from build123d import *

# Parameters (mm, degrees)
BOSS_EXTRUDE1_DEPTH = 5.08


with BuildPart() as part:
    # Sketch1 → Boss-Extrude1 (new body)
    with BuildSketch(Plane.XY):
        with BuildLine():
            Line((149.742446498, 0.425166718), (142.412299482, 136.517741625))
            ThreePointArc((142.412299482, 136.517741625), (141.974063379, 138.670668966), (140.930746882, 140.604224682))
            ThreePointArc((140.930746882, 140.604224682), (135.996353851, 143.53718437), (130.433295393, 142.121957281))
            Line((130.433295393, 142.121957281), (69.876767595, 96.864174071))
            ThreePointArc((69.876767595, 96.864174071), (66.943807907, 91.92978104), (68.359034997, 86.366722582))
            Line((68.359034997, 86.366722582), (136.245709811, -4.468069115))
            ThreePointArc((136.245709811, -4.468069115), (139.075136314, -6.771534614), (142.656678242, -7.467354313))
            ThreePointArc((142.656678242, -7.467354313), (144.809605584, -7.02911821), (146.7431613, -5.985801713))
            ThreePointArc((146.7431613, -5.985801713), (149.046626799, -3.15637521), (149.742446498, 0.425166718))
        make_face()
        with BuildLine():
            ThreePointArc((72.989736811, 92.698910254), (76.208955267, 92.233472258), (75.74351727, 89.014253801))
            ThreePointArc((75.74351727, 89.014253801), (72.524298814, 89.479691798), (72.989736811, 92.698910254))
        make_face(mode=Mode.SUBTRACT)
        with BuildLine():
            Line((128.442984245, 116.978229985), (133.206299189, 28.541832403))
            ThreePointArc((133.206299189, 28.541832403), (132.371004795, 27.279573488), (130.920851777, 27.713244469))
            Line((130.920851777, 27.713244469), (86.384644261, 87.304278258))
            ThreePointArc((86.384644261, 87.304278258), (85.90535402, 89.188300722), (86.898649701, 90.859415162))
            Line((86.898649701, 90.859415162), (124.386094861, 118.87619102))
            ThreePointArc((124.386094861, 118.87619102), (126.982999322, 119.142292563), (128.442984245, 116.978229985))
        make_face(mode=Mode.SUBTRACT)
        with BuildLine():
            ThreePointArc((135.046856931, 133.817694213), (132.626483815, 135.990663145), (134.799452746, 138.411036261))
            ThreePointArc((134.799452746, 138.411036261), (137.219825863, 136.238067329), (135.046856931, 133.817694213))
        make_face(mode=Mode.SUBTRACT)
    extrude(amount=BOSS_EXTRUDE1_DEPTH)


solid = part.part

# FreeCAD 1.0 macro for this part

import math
import FreeCAD as App
import Part
import Sketcher
Q = App.Units.Quantity

doc = App.newDocument("Part")
body = doc.addObject("PartDesign::Body", "Body")

sketch1 = body.newObject("Sketcher::SketchObject", "Sketch")
sketch1.AttachmentSupport = (doc.getObject("XY_Plane"), [""])
sketch1.MapMode = "FlatFace"
sketch1.addGeometry(Part.LineSegment(App.Vector(149.7, 0.4, 0), App.Vector(142.4, 136.5, 0)), False)
sketch1.addGeometry(Part.ArcOfCircle(Part.Circle(App.Vector(134.9, 136.1, 0), App.Vector(0, 0, 1), 7.5), math.radians(3), math.radians(37)), False)
sketch1.addGeometry(Part.ArcOfCircle(Part.Circle(App.Vector(134.9, 136.1, 0), App.Vector(0, 0, 1), 7.5), math.radians(37), math.radians(127)), False)
sketch1.addGeometry(Part.LineSegment(App.Vector(130.4, 142.1, 0), App.Vector(69.9, 96.9, 0)), False)
sketch1.addGeometry(Part.ArcOfCircle(Part.Circle(App.Vector(74.4, 90.9, 0), App.Vector(0, 0, 1), 7.5), math.radians(127), math.radians(217)), False)
sketch1.addGeometry(Part.LineSegment(App.Vector(68.4, 86.4, 0), App.Vector(136.2, -4.5, 0)), False)
sketch1.addGeometry(Part.ArcOfCircle(Part.Circle(App.Vector(142.3, 0, 0), App.Vector(0, 0, 1), 7.5), math.radians(-143), math.radians(-87)), False)
sketch1.addGeometry(Part.ArcOfCircle(Part.Circle(App.Vector(142.3, 0, 0), App.Vector(0, 0, 1), 7.5), math.radians(-87), math.radians(-53)), False)
sketch1.addGeometry(Part.ArcOfCircle(Part.Circle(App.Vector(142.3, 0, 0), App.Vector(0, 0, 1), 7.5), math.radians(-53), math.radians(3)), False)
sketch1.addGeometry(Part.ArcOfCircle(Part.Circle(App.Vector(125.9, 116.8, 0), App.Vector(0, 0, 1), 2.5), math.radians(3), math.radians(127)), False)
sketch1.addGeometry(Part.LineSegment(App.Vector(128.4, 117, 0), App.Vector(133.2, 28.5, 0)), False)
sketch1.addGeometry(Part.ArcOfCircle(Part.Circle(App.Vector(131.9, 28.5, 0), App.Vector(0, 0, 1), 1.3), math.radians(-143), math.radians(3)), False)
sketch1.addGeometry(Part.LineSegment(App.Vector(130.9, 27.7, 0), App.Vector(86.4, 87.3, 0)), False)
sketch1.addGeometry(Part.ArcOfCircle(Part.Circle(App.Vector(88.4, 88.8, 0), App.Vector(0, 0, 1), 2.5), math.radians(127), math.radians(217)), False)
sketch1.addGeometry(Part.LineSegment(App.Vector(86.9, 90.9, 0), App.Vector(124.4, 118.9, 0)), False)
sketch1.addGeometry(Part.ArcOfCircle(Part.Circle(App.Vector(74.4, 90.9, 0), App.Vector(0, 0, 1), 2.3), math.radians(127), math.radians(307)), False)
sketch1.addGeometry(Part.ArcOfCircle(Part.Circle(App.Vector(74.4, 90.9, 0), App.Vector(0, 0, 1), 2.3), math.radians(-53), math.radians(127)), False)
sketch1.addGeometry(Part.ArcOfCircle(Part.Circle(App.Vector(134.9, 136.1, 0), App.Vector(0, 0, 1), 2.3), math.radians(-87), math.radians(93)), False)
sketch1.addGeometry(Part.ArcOfCircle(Part.Circle(App.Vector(134.9, 136.1, 0), App.Vector(0, 0, 1), 2.3), math.radians(93), math.radians(273)), False)
sketch1.addConstraint(Sketcher.Constraint("Tangent", 0, 2, 1, 1))
sketch1.addConstraint(Sketcher.Constraint("Tangent", 1, 2, 2, 1))
sketch1.addConstraint(Sketcher.Constraint("Tangent", 2, 2, 3, 1))
sketch1.addConstraint(Sketcher.Constraint("Tangent", 3, 2, 4, 1))
sketch1.addConstraint(Sketcher.Constraint("Tangent", 4, 2, 5, 1))
sketch1.addConstraint(Sketcher.Constraint("Tangent", 5, 2, 6, 1))
sketch1.addConstraint(Sketcher.Constraint("Tangent", 6, 2, 7, 1))
sketch1.addConstraint(Sketcher.Constraint("Tangent", 7, 2, 8, 1))
sketch1.addConstraint(Sketcher.Constraint("Tangent", 8, 2, 0, 1))
sketch1.addConstraint(Sketcher.Constraint("Tangent", 9, 1, 10, 1))
sketch1.addConstraint(Sketcher.Constraint("Tangent", 10, 2, 11, 2))
sketch1.addConstraint(Sketcher.Constraint("Tangent", 11, 1, 12, 1))
sketch1.addConstraint(Sketcher.Constraint("Tangent", 12, 2, 13, 2))
sketch1.addConstraint(Sketcher.Constraint("Tangent", 13, 1, 14, 1))
sketch1.addConstraint(Sketcher.Constraint("Tangent", 14, 2, 9, 2))
sketch1.addConstraint(Sketcher.Constraint("Tangent", 15, 1, 16, 2))
sketch1.addConstraint(Sketcher.Constraint("Coincident", 16, 1, 15, 2))
sketch1.addConstraint(Sketcher.Constraint("Tangent", 17, 1, 18, 2))
sketch1.addConstraint(Sketcher.Constraint("Coincident", 18, 1, 17, 2))
sketch1.addConstraint(Sketcher.Constraint("Coincident", 8, 3, 6, 3))
sketch1.addConstraint(Sketcher.Constraint("Coincident", 15, 3, 4, 3))
sketch1.addConstraint(Sketcher.Constraint("Coincident", 17, 3, 1, 3))
sketch1.addConstraint(Sketcher.Constraint("Equal", 1, 2))
sketch1.addConstraint(Sketcher.Constraint("Equal", 2, 4))
sketch1.addConstraint(Sketcher.Constraint("Equal", 4, 6))
sketch1.addConstraint(Sketcher.Constraint("Equal", 9, 13))
sketch1.addConstraint(Sketcher.Constraint("Equal", 16, 17))
sketch1.addConstraint(Sketcher.Constraint("Perpendicular", 3, 5))
sketch1.addConstraint(Sketcher.Constraint("Parallel", 0, 10))
sketch1.addConstraint(Sketcher.Constraint("Parallel", 5, 12))
sketch1.addConstraint(Sketcher.Constraint("Perpendicular", 12, 14))
sketch1.addConstraint(Sketcher.Constraint("Radius", 1, Q("7.5 mm")))
sketch1.addConstraint(Sketcher.Constraint("Radius", 15, Q("2.3 mm")))
sketch1.addConstraint(Sketcher.Constraint("Radius", 9, Q("2.54 mm")))
sketch1.addConstraint(Sketcher.Constraint("Radius", 11, Q("1.27 mm")))
sketch1.addConstraint(Sketcher.Constraint("Distance", 3, Q("75.6 mm")))
sketch1.addConstraint(Sketcher.Constraint("Distance", 5, Q("113.4 mm")))
sketch1.addConstraint(Sketcher.Constraint("DistanceX", -1, 1, 6, 3, Q("142.253302 mm")))
sketch1.addConstraint(Sketcher.Constraint("DistanceX", -1, 1, 0, 2, Q("142.412299 mm")))
sketch1.addConstraint(Sketcher.Constraint("DistanceY", 7, 2, -1, 1, Q("5.985802 mm")))
sketch1.addConstraint(Sketcher.Constraint("DistanceX", -1, 1, 10, 2, Q("133.206299 mm")))
sketch1.addConstraint(Sketcher.Constraint("DistanceX", 4, 2, 15, 1, Q("4.630702 mm")))
sketch1.addConstraint(Sketcher.Constraint("Distance", 14, Q("46.800088 mm")))
sketch1.addConstraint(Sketcher.Constraint("DistanceY", -1, 1, 6, 3, Q("0.02179 mm")))
sketch1.addConstraint(Sketcher.Constraint("DistanceY", -1, 1, 9, 3, Q("116.84162 mm")))
sketch1.addConstraint(Sketcher.Constraint("DistanceX", -1, 1, 6, 2, Q("142.656678 mm")))
sketch1.addConstraint(Sketcher.Constraint("DistanceY", 1, 3, 1, 2, Q("4.489859 mm")))
sketch1.addConstraint(Sketcher.Constraint("DistanceX", 15, 3, 16, 1, Q("1.37689 mm")))
sketch1.addConstraint(Sketcher.Constraint("DistanceY", 17, 1, 17, 3, Q("2.296671 mm")))
sketch1.addConstraint(Sketcher.Constraint("DistanceY", 1, 3, 18, 1, Q("2.296671 mm")))
pad1 = body.newObject("PartDesign::Pad", "Pad")
pad1.Profile = sketch1
pad1.Length = 5.08

doc.recompute()
